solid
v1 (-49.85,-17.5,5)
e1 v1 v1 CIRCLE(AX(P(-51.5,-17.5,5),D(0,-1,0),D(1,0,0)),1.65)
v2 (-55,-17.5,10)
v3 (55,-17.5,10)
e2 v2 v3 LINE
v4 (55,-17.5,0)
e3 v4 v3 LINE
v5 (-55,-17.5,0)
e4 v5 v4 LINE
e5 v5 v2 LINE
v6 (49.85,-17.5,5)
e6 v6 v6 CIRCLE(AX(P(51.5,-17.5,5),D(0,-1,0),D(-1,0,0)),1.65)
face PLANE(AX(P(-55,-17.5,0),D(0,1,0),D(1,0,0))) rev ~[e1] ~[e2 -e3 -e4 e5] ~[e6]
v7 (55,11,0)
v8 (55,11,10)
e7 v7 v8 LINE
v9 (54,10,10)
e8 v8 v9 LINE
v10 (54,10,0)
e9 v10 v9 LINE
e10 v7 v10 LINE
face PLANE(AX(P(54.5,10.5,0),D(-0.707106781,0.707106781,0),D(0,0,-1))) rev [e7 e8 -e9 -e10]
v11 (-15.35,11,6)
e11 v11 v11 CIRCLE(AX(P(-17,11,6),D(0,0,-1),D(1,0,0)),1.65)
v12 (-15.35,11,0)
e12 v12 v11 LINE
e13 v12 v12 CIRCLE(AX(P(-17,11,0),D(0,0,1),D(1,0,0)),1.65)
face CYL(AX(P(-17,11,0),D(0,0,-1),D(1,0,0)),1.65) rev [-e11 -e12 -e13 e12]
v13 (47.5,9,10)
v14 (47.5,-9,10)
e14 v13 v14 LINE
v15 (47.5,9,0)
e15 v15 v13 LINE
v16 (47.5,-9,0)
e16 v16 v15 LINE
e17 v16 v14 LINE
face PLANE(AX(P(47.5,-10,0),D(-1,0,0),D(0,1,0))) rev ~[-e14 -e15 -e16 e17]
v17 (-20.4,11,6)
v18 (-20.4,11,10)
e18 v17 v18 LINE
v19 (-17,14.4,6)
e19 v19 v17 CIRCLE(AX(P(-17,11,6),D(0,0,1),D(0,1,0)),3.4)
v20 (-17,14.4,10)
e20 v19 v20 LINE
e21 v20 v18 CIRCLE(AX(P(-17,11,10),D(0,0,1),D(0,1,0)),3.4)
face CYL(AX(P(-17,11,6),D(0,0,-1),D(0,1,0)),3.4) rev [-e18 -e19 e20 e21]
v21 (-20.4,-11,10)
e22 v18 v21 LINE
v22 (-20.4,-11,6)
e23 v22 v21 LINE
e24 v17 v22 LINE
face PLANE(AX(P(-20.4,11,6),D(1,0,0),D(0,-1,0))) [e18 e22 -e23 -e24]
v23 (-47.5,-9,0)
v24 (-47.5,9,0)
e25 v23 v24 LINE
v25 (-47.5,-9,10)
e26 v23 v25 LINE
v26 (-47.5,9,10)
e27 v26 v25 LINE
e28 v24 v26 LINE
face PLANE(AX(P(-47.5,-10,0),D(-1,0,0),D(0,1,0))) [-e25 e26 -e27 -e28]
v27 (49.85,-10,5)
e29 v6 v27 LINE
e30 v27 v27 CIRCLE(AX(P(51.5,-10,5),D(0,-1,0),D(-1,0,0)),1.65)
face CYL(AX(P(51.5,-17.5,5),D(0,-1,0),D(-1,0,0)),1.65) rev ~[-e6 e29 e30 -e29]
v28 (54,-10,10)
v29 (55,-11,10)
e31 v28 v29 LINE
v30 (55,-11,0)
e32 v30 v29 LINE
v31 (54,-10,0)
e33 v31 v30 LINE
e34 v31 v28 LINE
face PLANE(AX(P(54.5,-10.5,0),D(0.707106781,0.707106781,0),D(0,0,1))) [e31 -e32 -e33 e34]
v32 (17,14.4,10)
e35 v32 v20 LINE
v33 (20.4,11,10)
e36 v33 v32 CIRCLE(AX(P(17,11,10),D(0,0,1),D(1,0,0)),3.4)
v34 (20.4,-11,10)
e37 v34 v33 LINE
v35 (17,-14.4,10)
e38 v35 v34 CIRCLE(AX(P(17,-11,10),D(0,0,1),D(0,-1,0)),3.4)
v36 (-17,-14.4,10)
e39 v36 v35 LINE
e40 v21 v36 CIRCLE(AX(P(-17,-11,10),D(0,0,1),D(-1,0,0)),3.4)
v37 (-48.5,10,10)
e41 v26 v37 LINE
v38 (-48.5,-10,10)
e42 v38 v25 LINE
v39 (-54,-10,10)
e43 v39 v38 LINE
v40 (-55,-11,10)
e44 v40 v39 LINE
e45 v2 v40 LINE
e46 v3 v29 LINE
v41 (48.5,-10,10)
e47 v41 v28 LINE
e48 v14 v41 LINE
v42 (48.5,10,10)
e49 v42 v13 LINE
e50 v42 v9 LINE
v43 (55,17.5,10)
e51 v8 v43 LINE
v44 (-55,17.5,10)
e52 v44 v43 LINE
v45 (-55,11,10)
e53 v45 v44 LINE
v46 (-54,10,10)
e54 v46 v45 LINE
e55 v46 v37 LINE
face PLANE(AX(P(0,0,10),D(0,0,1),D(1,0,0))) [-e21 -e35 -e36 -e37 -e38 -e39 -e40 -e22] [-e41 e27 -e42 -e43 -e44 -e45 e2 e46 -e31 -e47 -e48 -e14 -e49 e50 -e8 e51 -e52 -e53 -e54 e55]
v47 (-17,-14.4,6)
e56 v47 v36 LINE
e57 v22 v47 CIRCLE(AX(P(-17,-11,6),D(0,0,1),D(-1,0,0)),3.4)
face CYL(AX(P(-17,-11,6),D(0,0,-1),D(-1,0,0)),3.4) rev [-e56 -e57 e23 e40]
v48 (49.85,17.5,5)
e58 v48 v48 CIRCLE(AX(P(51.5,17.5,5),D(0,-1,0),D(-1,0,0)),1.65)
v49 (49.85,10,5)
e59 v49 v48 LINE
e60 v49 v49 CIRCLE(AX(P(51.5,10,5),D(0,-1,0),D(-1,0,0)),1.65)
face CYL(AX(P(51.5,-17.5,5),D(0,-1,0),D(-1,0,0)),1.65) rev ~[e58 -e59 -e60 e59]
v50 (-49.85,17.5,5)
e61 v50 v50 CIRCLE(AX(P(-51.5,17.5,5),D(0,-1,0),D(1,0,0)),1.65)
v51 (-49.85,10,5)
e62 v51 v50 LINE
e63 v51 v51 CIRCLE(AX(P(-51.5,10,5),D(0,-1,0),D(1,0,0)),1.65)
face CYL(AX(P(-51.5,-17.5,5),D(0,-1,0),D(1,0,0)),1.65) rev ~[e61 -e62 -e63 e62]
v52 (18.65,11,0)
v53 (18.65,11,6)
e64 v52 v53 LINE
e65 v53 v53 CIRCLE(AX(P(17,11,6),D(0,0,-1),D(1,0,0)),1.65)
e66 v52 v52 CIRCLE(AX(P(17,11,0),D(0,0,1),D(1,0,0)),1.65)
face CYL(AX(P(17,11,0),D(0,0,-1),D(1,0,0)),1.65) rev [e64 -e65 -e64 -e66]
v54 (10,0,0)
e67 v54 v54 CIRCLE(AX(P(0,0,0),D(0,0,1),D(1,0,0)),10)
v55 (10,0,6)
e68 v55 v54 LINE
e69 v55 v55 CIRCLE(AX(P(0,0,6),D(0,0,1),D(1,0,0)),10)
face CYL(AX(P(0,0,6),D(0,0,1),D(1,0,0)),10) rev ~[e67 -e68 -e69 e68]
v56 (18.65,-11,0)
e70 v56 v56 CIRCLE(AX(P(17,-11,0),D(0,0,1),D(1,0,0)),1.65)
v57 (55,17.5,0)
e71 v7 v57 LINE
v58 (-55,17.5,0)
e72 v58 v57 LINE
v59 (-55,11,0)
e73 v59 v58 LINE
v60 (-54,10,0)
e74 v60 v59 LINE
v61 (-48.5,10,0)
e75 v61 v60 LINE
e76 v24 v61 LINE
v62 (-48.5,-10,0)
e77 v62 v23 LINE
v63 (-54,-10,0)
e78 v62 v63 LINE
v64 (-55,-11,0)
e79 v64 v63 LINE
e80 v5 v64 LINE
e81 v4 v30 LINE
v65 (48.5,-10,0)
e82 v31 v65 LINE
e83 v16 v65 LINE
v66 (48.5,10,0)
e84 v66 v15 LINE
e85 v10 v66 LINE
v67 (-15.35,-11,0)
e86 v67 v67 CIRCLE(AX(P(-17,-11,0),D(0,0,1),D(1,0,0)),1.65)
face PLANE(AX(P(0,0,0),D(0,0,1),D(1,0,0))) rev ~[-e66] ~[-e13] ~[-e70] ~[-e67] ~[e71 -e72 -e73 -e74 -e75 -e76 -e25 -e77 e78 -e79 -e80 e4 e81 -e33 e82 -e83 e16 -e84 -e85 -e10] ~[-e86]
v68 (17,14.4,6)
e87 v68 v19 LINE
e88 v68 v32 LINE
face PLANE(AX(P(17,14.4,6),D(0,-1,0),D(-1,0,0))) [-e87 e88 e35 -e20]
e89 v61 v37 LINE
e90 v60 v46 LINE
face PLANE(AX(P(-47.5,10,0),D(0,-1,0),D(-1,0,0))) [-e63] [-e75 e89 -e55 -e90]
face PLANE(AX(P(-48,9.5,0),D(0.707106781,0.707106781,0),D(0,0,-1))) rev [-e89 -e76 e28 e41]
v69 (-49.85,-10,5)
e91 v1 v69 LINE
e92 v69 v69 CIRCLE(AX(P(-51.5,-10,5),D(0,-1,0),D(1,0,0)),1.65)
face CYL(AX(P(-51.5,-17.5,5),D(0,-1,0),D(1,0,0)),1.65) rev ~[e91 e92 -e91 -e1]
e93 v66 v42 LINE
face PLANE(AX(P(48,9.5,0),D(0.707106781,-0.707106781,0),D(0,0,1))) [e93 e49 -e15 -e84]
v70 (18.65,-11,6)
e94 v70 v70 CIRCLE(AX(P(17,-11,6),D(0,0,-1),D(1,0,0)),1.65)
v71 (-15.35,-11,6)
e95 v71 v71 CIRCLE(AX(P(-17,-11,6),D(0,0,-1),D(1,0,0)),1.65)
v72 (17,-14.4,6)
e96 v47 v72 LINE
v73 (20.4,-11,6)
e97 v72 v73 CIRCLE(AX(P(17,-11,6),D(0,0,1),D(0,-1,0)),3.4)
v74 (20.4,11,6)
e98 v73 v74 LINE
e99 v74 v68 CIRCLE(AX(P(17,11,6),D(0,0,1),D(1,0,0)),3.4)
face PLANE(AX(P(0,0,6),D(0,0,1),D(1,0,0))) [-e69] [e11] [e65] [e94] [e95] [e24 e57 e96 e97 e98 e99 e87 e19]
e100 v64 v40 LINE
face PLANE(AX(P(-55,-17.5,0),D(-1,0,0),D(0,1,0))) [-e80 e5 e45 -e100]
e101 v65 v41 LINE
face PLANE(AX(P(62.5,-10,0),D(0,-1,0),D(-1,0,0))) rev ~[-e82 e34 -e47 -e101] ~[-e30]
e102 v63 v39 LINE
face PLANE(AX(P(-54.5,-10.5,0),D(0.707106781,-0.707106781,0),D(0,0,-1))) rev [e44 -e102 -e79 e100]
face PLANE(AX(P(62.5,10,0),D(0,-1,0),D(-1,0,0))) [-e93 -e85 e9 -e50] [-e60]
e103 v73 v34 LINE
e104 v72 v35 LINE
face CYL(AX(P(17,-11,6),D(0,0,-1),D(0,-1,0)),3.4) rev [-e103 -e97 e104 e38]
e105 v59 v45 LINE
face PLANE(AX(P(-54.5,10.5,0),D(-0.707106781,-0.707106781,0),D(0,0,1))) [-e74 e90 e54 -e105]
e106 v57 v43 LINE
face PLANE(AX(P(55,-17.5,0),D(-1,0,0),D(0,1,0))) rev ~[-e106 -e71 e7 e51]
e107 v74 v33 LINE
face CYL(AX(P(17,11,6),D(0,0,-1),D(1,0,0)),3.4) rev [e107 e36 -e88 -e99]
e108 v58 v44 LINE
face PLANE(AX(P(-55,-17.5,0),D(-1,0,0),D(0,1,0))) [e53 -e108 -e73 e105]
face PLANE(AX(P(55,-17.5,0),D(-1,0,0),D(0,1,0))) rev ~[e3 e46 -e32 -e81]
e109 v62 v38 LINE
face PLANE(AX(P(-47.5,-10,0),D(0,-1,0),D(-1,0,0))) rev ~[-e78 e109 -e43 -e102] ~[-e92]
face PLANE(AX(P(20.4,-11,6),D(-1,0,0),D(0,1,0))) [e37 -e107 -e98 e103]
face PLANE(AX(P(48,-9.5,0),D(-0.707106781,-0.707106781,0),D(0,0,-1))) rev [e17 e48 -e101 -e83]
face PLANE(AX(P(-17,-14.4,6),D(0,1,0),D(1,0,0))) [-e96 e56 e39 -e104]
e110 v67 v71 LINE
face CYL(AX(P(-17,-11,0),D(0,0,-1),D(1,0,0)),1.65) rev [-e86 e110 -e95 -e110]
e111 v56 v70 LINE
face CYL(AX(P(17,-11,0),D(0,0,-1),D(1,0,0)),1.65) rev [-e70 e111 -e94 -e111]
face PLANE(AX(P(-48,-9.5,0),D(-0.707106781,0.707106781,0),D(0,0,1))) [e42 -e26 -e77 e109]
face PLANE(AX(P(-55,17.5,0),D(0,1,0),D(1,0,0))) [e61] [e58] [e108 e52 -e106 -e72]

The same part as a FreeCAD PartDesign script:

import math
import FreeCAD as App
import Part
import Sketcher

V = App.Vector
Q = App.Units.Quantity


def edges_at(feature, points):
    """Names of the edges that pass closest to the given points."""
    edges = feature.Shape.Edges
    near = lambda p: min(range(len(edges)), key=lambda i: edges[i].distToShape(Part.Vertex(*p))[0])
    return sorted({f"Edge{near(p) + 1}" for p in points})

doc = App.newDocument("Part")
body = doc.addObject("PartDesign::Body", "Body")

sketch1 = body.newObject("Sketcher::SketchObject", "Sketch")
sketch1.AttachmentSupport = (doc.getObject("XY_Plane"), [""])
sketch1.MapMode = "FlatFace"
sketch1.addGeometry([
    Part.LineSegment(V(-55, 17.5, 0), V(-55, -17.5, 0)),
    Part.LineSegment(V(-55, -17.5, 0), V(55, -17.5, 0)),
    Part.LineSegment(V(55, -17.5, 0), V(55, 17.5, 0)),
    Part.LineSegment(V(55, 17.5, 0), V(-55, 17.5, 0)),
    Part.Circle(V(-17, -11, 0), V(0, 0, 1), 1.65),
    Part.Circle(V(17, -11, 0), V(0, 0, 1), 1.65),
    Part.Circle(V(-17, 11, 0), V(0, 0, 1), 1.65),
    Part.Circle(V(17, 11, 0), V(0, 0, 1), 1.65),
], False)
sketch1.addConstraint([
    Sketcher.Constraint("Coincident", 0, 2, 1, 1),
    Sketcher.Constraint("Coincident", 1, 2, 2, 1),
    Sketcher.Constraint("Coincident", 2, 2, 3, 1),
    Sketcher.Constraint("Coincident", 3, 2, 0, 1),
    Sketcher.Constraint("Vertical", 0),
    Sketcher.Constraint("Horizontal", 1),
    Sketcher.Constraint("Vertical", 2),
    Sketcher.Constraint("Horizontal", 3),
    Sketcher.Constraint("Equal", 4, 5),
    Sketcher.Constraint("Equal", 5, 6),
    Sketcher.Constraint("Equal", 6, 7),
    Sketcher.Constraint("Symmetric", 5, 3, 6, 3, -1, 1),
    Sketcher.Constraint("Symmetric", 4, 3, 7, 3, -1, 1),
    Sketcher.Constraint("Symmetric", 0, 2, 2, 2, -1, 1),
    Sketcher.Constraint("Symmetric", 4, 3, 5, 3, -2),
    Sketcher.Constraint("Diameter", 4, Q("3.3 mm")),
    Sketcher.Constraint("DistanceX", 1, 1, 1, 2, Q("110 mm")),
    Sketcher.Constraint("DistanceY", 0, 2, 0, 1, Q("35 mm")),
    Sketcher.Constraint("DistanceX", 4, 3, -1, 1, Q("17 mm")),
    Sketcher.Constraint("DistanceY", 4, 3, -1, 1, Q("11 mm")),
])
pad1 = body.newObject("PartDesign::Pad", "Pad")
pad1.Profile = sketch1
pad1.Length = 10

sketch2 = body.newObject("Sketcher::SketchObject", "Sketch001")
sketch2.AttachmentSupport = (doc.getObject("XY_Plane"), [""])
sketch2.MapMode = "FlatFace"
sketch2.AttachmentOffset = App.Placement(V(0, 0, 10), App.Rotation())
sketch2.addGeometry([
    Part.LineSegment(V(-20, 14, 0), V(-20, -14, 0)),
    Part.LineSegment(V(-20, -14, 0), V(20, -14, 0)),
    Part.LineSegment(V(20, -14, 0), V(20, 14, 0)),
    Part.LineSegment(V(20, 14, 0), V(-20, 14, 0)),
], False)
sketch2.addConstraint([
    Sketcher.Constraint("Coincident", 0, 2, 1, 1),
    Sketcher.Constraint("Coincident", 1, 2, 2, 1),
    Sketcher.Constraint("Coincident", 2, 2, 3, 1),
    Sketcher.Constraint("Coincident", 3, 2, 0, 1),
    Sketcher.Constraint("Vertical", 0),
    Sketcher.Constraint("Horizontal", 1),
    Sketcher.Constraint("Vertical", 2),
    Sketcher.Constraint("Horizontal", 3),
    Sketcher.Constraint("Symmetric", 0, 2, 2, 2, -1, 1),
    Sketcher.Constraint("DistanceX", 1, 1, 1, 2, Q("40 mm")),
    Sketcher.Constraint("DistanceY", 0, 2, 0, 1, Q("28 mm")),
])
pocket1 = body.newObject("PartDesign::Pocket", "Pocket")
pocket1.Profile = sketch2
pocket1.Length = 4
doc.recompute()

fillet = body.newObject("PartDesign::Fillet", "Fillet")
fillet.Base = (pocket1, edges_at(pocket1, [
    (-20, -14, 8),
    (-20, 14, 8),
    (20, 14, 8),
    (20, -14, 8),
]))
fillet.Radius = 3

sketch3 = body.newObject("Sketcher::SketchObject", "Sketch002")
sketch3.AttachmentSupport = (doc.getObject("XZ_Plane"), [""])
sketch3.MapMode = "FlatFace"
sketch3.AttachmentOffset = App.Placement(V(0, 0, 17.5), App.Rotation())
sketch3.addGeometry([
    Part.Circle(V(-51.5, 5, 0), V(0, 0, 1), 1.65),
    Part.Circle(V(51.5, 5, 0), V(0, 0, 1), 1.65),
], False)
sketch3.addConstraint([
    Sketcher.Constraint("Equal", 0, 1),
    Sketcher.Constraint("Symmetric", 0, 3, 1, 3, -2),
    Sketcher.Constraint("Diameter", 0, Q("3.3 mm")),
    Sketcher.Constraint("DistanceY", -1, 1, 0, 3, Q("5 mm")),
    Sketcher.Constraint("DistanceX", 0, 3, 1, 3, Q("103 mm")),
])
pocket2 = body.newObject("PartDesign::Pocket", "Pocket001")
pocket2.Profile = sketch3
pocket2.Type = "ThroughAll"

sketch4 = body.newObject("Sketcher::SketchObject", "Sketch003")
sketch4.AttachmentSupport = (doc.getObject("XY_Plane"), [""])
sketch4.MapMode = "FlatFace"
sketch4.AttachmentOffset = App.Placement(V(0, 0, 6), App.Rotation())
sketch4.addGeometry([
    Part.LineSegment(V(-17, -14.4, 0), V(17, -14.4, 0)),
    Part.ArcOfCircle(Part.Circle(V(17, -11, 0), V(0, 0, 1), 3.4), math.radians(-90), math.radians(0)),
    Part.LineSegment(V(20.4, -11, 0), V(20.4, 11, 0)),
    Part.ArcOfCircle(Part.Circle(V(17, 11, 0), V(0, 0, 1), 3.4), math.radians(0), math.radians(90)),
    Part.LineSegment(V(17, 14.4, 0), V(-17, 14.4, 0)),
    Part.ArcOfCircle(Part.Circle(V(-17, 11, 0), V(0, 0, 1), 3.4), math.radians(90), math.radians(180)),
    Part.LineSegment(V(-20.4, 11, 0), V(-20.4, -11, 0)),
    Part.ArcOfCircle(Part.Circle(V(-17, -11, 0), V(0, 0, 1), 3.4), math.radians(180), math.radians(270)),
], False)
sketch4.addConstraint([
    Sketcher.Constraint("Tangent", 0, 2, 1, 1),
    Sketcher.Constraint("Tangent", 1, 2, 2, 1),
    Sketcher.Constraint("Tangent", 2, 2, 3, 1),
    Sketcher.Constraint("Tangent", 3, 2, 4, 1),
    Sketcher.Constraint("Tangent", 4, 2, 5, 1),
    Sketcher.Constraint("Tangent", 5, 2, 6, 1),
    Sketcher.Constraint("Tangent", 6, 2, 7, 1),
    Sketcher.Constraint("Tangent", 7, 2, 0, 1),
    Sketcher.Constraint("Horizontal", 0),
    Sketcher.Constraint("Vertical", 2),
    Sketcher.Constraint("Horizontal", 4),
    Sketcher.Constraint("Vertical", 6),
    Sketcher.Constraint("Equal", 1, 3),
    Sketcher.Constraint("Equal", 3, 5),
    Sketcher.Constraint("Equal", 5, 7),
    Sketcher.Constraint("Symmetric", 1, 3, 5, 3, -1, 1),
    Sketcher.Constraint("Radius", 1, Q("3.4 mm")),
    Sketcher.Constraint("DistanceX", 0, 1, 0, 2, Q("34 mm")),
    Sketcher.Constraint("DistanceY", 2, 1, 2, 2, Q("22 mm")),
])
pocket3 = body.newObject("PartDesign::Pocket", "Pocket002")
pocket3.Profile = sketch4
pocket3.Length = 4
pocket3.Reversed = True

sketch5 = body.newObject("Sketcher::SketchObject", "Sketch004")
sketch5.AttachmentSupport = (doc.getObject("XY_Plane"), [""])
sketch5.MapMode = "FlatFace"
sketch5.addGeometry([
    Part.LineSegment(V(62.5, 10, 0), V(62.5, -10, 0)),
    Part.LineSegment(V(62.5, -10, 0), V(47.5, -10, 0)),
    Part.LineSegment(V(47.5, -10, 0), V(47.5, 10, 0)),
    Part.LineSegment(V(47.5, 10, 0), V(62.5, 10, 0)),
    Part.LineSegment(V(-47.5, 10, 0), V(-47.5, -10, 0)),
    Part.LineSegment(V(-47.5, -10, 0), V(-62.5, -10, 0)),
    Part.LineSegment(V(-62.5, -10, 0), V(-62.5, 10, 0)),
    Part.LineSegment(V(-62.5, 10, 0), V(-47.5, 10, 0)),
], False)
sketch5.addConstraint([
    Sketcher.Constraint("Coincident", 0, 2, 1, 1),
    Sketcher.Constraint("Coincident", 1, 2, 2, 1),
    Sketcher.Constraint("Coincident", 2, 2, 3, 1),
    Sketcher.Constraint("Coincident", 3, 2, 0, 1),
    Sketcher.Constraint("Coincident", 4, 2, 5, 1),
    Sketcher.Constraint("Coincident", 5, 2, 6, 1),
    Sketcher.Constraint("Coincident", 6, 2, 7, 1),
    Sketcher.Constraint("Coincident", 7, 2, 4, 1),
    Sketcher.Constraint("Vertical", 0),
    Sketcher.Constraint("Horizontal", 1),
    Sketcher.Constraint("Vertical", 2),
    Sketcher.Constraint("Horizontal", 3),
    Sketcher.Constraint("Vertical", 4),
    Sketcher.Constraint("Horizontal", 5),
    Sketcher.Constraint("Vertical", 6),
    Sketcher.Constraint("Horizontal", 7),
    Sketcher.Constraint("Symmetric", 2, 2, 4, 2, -1, 1),
    Sketcher.Constraint("Symmetric", 0, 2, 6, 2, -1, 1),
    Sketcher.Constraint("Horizontal", 1, 2, 4, 2),
    Sketcher.Constraint("DistanceX", 1, 2, 1, 1, Q("15 mm")),
    Sketcher.Constraint("DistanceY", 0, 2, 0, 1, Q("20 mm")),
    Sketcher.Constraint("DistanceX", 4, 2, 1, 2, Q("95 mm")),
])
pocket4 = body.newObject("PartDesign::Pocket", "Pocket003")
pocket4.Profile = sketch5
pocket4.Type = "ThroughAll"
pocket4.Reversed = True
doc.recompute()

chamfer = body.newObject("PartDesign::Chamfer", "Chamfer")
chamfer.Base = (pocket4, edges_at(pocket4, [
    (55, -10, 5),
    (47.5, -10, 5),
    (55, 10, 5),
    (47.5, 10, 5),
    (-55, 10, 5),
    (-47.5, 10, 5),
    (-55, -10, 5),
    (-47.5, -10, 5),
]))
chamfer.Size = 1

sketch6 = body.newObject("Sketcher::SketchObject", "Sketch005")
sketch6.AttachmentSupport = (doc.getObject("XY_Plane"), [""])
sketch6.MapMode = "FlatFace"
sketch6.AttachmentOffset = App.Placement(V(0, 0, 6), App.Rotation())
sketch6.addGeometry(Part.Circle(V(0, 0, 0), V(0, 0, 1), 10), False)
sketch6.addConstraint([
    Sketcher.Constraint("Coincident", 0, 3, -1, 1),
    Sketcher.Constraint("Diameter", 0, Q("20 mm")),
])
pocket5 = body.newObject("PartDesign::Pocket", "Pocket004")
pocket5.Profile = sketch6
pocket5.Length = 10

doc.recompute()
